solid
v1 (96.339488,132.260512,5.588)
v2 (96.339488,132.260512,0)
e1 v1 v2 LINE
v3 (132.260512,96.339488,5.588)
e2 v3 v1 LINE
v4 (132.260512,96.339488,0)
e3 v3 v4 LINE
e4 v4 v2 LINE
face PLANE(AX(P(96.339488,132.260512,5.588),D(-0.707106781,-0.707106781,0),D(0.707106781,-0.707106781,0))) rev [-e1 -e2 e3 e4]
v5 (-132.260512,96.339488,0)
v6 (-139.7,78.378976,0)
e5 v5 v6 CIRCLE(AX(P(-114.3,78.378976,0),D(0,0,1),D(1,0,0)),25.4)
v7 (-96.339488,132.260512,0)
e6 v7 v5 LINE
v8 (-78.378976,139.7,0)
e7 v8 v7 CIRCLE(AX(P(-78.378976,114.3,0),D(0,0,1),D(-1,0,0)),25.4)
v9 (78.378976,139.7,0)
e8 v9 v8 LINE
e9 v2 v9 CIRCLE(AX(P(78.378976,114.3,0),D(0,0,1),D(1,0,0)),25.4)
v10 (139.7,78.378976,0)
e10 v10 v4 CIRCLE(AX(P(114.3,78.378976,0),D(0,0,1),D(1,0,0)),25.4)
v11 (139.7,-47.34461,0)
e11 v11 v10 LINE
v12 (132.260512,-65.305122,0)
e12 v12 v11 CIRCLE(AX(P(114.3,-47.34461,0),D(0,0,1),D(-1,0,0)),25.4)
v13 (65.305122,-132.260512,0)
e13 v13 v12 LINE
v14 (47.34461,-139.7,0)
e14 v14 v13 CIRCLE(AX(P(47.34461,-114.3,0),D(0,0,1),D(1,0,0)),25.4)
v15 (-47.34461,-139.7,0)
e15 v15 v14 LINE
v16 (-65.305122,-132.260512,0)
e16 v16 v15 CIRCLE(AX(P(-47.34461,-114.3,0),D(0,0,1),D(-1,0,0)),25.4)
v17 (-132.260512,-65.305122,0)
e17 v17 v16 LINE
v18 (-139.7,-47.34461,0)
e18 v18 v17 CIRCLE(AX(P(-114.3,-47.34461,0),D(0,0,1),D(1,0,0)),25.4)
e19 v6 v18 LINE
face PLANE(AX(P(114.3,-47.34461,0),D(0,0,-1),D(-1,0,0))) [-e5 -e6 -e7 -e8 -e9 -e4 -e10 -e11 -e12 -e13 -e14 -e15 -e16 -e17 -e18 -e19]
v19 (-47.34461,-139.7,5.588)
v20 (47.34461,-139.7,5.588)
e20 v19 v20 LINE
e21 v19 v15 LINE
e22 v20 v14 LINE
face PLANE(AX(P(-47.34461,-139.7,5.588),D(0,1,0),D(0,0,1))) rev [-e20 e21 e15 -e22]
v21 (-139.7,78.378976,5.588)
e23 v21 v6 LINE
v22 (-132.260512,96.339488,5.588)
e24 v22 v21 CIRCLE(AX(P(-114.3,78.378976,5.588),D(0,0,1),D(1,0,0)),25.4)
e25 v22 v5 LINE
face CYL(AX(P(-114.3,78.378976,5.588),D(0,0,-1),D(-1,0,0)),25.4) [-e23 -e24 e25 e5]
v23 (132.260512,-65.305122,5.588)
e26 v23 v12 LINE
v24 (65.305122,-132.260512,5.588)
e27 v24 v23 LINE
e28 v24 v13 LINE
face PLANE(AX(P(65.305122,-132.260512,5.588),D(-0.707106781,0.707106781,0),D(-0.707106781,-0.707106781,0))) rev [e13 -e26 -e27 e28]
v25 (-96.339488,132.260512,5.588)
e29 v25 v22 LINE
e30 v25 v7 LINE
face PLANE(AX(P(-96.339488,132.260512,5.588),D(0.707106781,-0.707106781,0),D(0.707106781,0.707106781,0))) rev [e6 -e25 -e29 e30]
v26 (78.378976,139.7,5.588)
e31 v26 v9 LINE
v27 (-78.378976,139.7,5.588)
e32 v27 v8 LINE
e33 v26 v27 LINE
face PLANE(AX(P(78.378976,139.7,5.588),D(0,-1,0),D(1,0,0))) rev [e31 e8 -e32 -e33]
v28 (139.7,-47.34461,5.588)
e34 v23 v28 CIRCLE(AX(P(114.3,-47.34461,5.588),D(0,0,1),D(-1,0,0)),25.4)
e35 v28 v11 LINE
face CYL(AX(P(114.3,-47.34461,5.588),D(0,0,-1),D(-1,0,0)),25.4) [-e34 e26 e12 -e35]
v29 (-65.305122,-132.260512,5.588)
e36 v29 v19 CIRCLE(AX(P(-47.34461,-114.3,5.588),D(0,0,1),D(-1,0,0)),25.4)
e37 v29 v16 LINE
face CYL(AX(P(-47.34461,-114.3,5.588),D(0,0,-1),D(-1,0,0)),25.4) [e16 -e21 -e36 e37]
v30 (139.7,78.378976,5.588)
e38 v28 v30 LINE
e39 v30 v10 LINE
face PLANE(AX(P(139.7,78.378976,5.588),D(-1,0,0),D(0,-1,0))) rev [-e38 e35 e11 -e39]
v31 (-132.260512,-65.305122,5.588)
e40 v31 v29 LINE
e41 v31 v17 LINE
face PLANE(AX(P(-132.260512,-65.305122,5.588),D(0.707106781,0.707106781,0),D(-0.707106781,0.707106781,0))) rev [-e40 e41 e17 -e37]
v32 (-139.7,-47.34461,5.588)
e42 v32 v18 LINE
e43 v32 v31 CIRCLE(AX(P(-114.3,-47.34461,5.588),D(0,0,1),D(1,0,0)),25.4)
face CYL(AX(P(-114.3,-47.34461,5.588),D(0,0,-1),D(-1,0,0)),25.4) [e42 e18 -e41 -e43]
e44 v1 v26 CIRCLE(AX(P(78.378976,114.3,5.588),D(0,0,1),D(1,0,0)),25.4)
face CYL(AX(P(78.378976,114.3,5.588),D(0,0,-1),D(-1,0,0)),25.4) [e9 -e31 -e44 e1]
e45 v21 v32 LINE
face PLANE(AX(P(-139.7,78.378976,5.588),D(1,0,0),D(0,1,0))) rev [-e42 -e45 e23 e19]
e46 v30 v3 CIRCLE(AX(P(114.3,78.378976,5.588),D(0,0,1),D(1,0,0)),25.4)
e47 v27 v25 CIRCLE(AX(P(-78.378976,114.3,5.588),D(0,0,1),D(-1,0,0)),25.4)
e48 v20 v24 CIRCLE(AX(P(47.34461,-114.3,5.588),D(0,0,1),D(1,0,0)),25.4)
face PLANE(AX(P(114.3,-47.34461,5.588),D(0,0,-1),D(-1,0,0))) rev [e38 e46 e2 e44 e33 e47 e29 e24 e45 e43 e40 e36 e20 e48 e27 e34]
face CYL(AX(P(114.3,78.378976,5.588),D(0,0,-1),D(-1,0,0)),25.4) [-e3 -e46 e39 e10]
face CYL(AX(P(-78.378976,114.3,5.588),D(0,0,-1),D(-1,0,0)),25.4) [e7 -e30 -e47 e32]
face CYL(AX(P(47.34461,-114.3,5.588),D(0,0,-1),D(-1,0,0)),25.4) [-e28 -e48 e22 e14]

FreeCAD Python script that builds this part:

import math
import FreeCAD as App
import Part
import Sketcher
Q = App.Units.Quantity

doc = App.newDocument("Part")
body = doc.addObject("PartDesign::Body", "Body")

# Sketch on XY plane
sketch1 = body.newObject("Sketcher::SketchObject", "Sketch")
sketch1.AttachmentSupport = (doc.getObject("XY_Plane"), [""])
sketch1.MapMode = "FlatFace"
sketch1.addGeometry([
    Part.LineSegment(App.Vector(65, -132, 0), App.Vector(132, -65, 0)),  # 0
    Part.ArcOfCircle(Part.Circle(App.Vector(114, -47, 0), App.Vector(0, 0, 1), 25), math.radians(-45), math.radians(0)),  # 1
    Part.LineSegment(App.Vector(140, -47, 0), App.Vector(140, 78, 0)),  # 2
    Part.ArcOfCircle(Part.Circle(App.Vector(114, 78, 0), App.Vector(0, 0, 1), 25), math.radians(0), math.radians(45)),  # 3
    Part.LineSegment(App.Vector(132, 96, 0), App.Vector(96, 132, 0)),  # 4
    Part.ArcOfCircle(Part.Circle(App.Vector(78, 114, 0), App.Vector(0, 0, 1), 25), math.radians(45), math.radians(90)),  # 5
    Part.LineSegment(App.Vector(78, 140, 0), App.Vector(-78, 140, 0)),  # 6
    Part.ArcOfCircle(Part.Circle(App.Vector(-78, 114, 0), App.Vector(0, 0, 1), 25), math.radians(90), math.radians(135)),  # 7
    Part.LineSegment(App.Vector(-96, 132, 0), App.Vector(-132, 96, 0)),  # 8
    Part.ArcOfCircle(Part.Circle(App.Vector(-114, 78, 0), App.Vector(0, 0, 1), 25), math.radians(135), math.radians(180)),  # 9
    Part.LineSegment(App.Vector(-140, 78, 0), App.Vector(-140, -47, 0)),  # 10
    Part.ArcOfCircle(Part.Circle(App.Vector(-114, -47, 0), App.Vector(0, 0, 1), 25), math.radians(180), math.radians(225)),  # 11
    Part.LineSegment(App.Vector(-132, -65, 0), App.Vector(-65, -132, 0)),  # 12
    Part.ArcOfCircle(Part.Circle(App.Vector(-47, -114, 0), App.Vector(0, 0, 1), 25), math.radians(-135), math.radians(-90)),  # 13
    Part.LineSegment(App.Vector(-47, -140, 0), App.Vector(47, -140, 0)),  # 14
    Part.ArcOfCircle(Part.Circle(App.Vector(47, -114, 0), App.Vector(0, 0, 1), 25), math.radians(-90), math.radians(-45)),  # 15
], False)
sketch1.addConstraint([
    Sketcher.Constraint("Tangent", 0, 2, 1, 1),
    Sketcher.Constraint("Tangent", 1, 2, 2, 1),
    Sketcher.Constraint("Tangent", 2, 2, 3, 1),
    Sketcher.Constraint("Tangent", 3, 2, 4, 1),
    Sketcher.Constraint("Tangent", 4, 2, 5, 1),
    Sketcher.Constraint("Tangent", 5, 2, 6, 1),
    Sketcher.Constraint("Tangent", 6, 2, 7, 1),
    Sketcher.Constraint("Tangent", 7, 2, 8, 1),
    Sketcher.Constraint("Tangent", 8, 2, 9, 1),
    Sketcher.Constraint("Tangent", 9, 2, 10, 1),
    Sketcher.Constraint("Tangent", 10, 2, 11, 1),
    Sketcher.Constraint("Tangent", 11, 2, 12, 1),
    Sketcher.Constraint("Tangent", 12, 2, 13, 1),
    Sketcher.Constraint("Tangent", 13, 2, 14, 1),
    Sketcher.Constraint("Tangent", 14, 2, 15, 1),
    Sketcher.Constraint("Tangent", 15, 2, 0, 1),
    Sketcher.Constraint("Vertical", 2),
    Sketcher.Constraint("Horizontal", 6),
    Sketcher.Constraint("Vertical", 10),
    Sketcher.Constraint("Horizontal", 14),
    Sketcher.Constraint("Equal", 1, 3),
    Sketcher.Constraint("Equal", 3, 5),
    Sketcher.Constraint("Equal", 5, 7),
    Sketcher.Constraint("Equal", 7, 9),
    Sketcher.Constraint("Equal", 9, 11),
    Sketcher.Constraint("Equal", 11, 13),
    Sketcher.Constraint("Equal", 13, 15),
    Sketcher.Constraint("Symmetric", 3, 3, 9, 3, -2),
    Sketcher.Constraint("Symmetric", 0, 2, 11, 2, -2),
    Sketcher.Constraint("Perpendicular", 0, 4),
    Sketcher.Constraint("Perpendicular", 4, 8),
    Sketcher.Constraint("Perpendicular", 8, 12),
    Sketcher.Constraint("Radius", 1, Q("1 in")),
    Sketcher.Constraint("Distance", 4, Q("2 in")),
    Sketcher.Constraint("DistanceX", 9, 3, 3, 3, Q("9 in")),
    Sketcher.Constraint("DistanceY", 13, 3, 7, 3, Q("9 in")),
    Sketcher.Constraint("DistanceY", -1, 1, 5, 3, Q("4.5 in")),
    Sketcher.Constraint("DistanceX", 14, 1, 14, 2, 94.68922),
])
pad1 = body.newObject("PartDesign::Pad", "Pad")
pad1.Profile = sketch1
pad1.Length = Q("0.22 in")

doc.recompute()
